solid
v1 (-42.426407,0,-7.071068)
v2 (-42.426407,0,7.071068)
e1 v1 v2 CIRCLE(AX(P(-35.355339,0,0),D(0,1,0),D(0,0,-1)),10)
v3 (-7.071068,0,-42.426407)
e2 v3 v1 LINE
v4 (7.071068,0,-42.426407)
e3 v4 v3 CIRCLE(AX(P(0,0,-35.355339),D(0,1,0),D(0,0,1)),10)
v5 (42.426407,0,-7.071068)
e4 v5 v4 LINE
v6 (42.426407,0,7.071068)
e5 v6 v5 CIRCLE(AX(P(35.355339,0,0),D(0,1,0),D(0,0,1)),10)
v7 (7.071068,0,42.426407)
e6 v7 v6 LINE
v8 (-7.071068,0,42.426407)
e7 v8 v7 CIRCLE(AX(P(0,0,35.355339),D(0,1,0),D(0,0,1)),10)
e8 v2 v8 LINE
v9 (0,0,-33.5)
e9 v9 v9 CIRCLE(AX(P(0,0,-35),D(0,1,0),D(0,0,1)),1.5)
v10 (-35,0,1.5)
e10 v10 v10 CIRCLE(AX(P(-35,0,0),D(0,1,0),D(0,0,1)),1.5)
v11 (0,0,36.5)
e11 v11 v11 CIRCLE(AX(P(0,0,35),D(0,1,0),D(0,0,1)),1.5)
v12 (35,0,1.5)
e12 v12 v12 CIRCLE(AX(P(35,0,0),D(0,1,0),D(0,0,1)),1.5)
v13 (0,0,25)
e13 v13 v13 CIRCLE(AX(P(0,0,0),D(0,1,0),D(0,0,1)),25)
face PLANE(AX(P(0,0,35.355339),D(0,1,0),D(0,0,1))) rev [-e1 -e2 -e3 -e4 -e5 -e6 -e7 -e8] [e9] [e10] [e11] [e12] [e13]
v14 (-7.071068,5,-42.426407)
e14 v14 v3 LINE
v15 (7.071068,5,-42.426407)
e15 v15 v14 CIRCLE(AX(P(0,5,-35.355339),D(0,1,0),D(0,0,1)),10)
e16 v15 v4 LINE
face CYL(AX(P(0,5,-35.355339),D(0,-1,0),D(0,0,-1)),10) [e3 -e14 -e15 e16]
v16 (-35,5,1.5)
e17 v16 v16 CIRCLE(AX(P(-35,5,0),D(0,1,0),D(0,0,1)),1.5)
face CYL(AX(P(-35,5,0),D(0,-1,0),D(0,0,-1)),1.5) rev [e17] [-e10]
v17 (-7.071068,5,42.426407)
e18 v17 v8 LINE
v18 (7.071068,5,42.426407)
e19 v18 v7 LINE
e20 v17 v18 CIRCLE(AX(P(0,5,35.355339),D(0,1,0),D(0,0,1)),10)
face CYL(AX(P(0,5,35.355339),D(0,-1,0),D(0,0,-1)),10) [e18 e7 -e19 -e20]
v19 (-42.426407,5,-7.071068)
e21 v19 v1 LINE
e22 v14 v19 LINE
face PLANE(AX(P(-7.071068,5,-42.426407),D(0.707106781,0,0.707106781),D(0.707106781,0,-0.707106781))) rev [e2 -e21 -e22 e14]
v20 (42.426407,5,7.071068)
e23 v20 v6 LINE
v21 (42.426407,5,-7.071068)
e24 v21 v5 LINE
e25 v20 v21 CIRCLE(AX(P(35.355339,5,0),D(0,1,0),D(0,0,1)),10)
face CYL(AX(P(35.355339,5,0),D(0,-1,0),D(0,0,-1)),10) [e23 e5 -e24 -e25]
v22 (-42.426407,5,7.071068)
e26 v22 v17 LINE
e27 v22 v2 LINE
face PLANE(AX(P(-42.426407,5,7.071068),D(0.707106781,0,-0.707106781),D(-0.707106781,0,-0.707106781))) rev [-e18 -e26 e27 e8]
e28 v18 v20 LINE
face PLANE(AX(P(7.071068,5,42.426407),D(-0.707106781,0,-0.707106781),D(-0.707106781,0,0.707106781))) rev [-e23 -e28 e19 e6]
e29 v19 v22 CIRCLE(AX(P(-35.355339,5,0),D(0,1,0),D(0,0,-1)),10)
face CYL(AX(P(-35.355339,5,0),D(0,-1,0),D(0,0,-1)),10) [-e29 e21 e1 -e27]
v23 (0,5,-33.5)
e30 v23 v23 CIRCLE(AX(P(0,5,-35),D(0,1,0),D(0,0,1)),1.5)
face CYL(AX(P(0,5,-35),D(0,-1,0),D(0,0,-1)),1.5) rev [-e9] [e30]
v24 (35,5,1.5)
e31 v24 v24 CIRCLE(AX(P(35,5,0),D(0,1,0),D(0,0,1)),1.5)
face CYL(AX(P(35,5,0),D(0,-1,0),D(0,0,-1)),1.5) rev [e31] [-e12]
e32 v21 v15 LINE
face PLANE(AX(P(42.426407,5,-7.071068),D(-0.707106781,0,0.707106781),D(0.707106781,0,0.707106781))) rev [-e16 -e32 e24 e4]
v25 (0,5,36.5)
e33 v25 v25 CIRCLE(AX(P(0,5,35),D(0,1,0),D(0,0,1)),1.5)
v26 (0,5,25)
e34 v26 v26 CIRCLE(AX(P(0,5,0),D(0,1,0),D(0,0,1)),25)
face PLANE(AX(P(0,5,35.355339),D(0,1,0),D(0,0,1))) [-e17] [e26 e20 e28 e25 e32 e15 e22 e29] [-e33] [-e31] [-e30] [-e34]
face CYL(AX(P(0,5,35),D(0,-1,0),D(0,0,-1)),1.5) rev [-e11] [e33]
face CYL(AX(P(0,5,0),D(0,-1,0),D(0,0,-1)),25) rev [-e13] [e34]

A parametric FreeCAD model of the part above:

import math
import FreeCAD as App
import Part
import Sketcher

V = App.Vector
Q = App.Units.Quantity

doc = App.newDocument("Part")
body = doc.addObject("PartDesign::Body", "Body")

# Sketch on XZ plane
sketch1 = body.newObject("Sketcher::SketchObject", "Sketch")
sketch1.AttachmentSupport = (doc.getObject("XZ_Plane"), [""])
sketch1.MapMode = "FlatFace"
sketch1.addGeometry([
    Part.LineSegment(V(-42.4, 7.1, 0), V(-7.1, 42.4, 0)),  # 0
    Part.ArcOfCircle(Part.Circle(V(0, 35.4, 0), V(0, 0, 1), 10), math.radians(45), math.radians(135)),  # 1
    Part.LineSegment(V(7.1, 42.4, 0), V(42.4, 7.1, 0)),  # 2
    Part.ArcOfCircle(Part.Circle(V(35.4, 0, 0), V(0, 0, 1), 10), math.radians(-45), math.radians(45)),  # 3
    Part.LineSegment(V(42.4, -7.1, 0), V(7.1, -42.4, 0)),  # 4
    Part.ArcOfCircle(Part.Circle(V(0, -35.4, 0), V(0, 0, 1), 10), math.radians(-135), math.radians(-45)),  # 5
    Part.LineSegment(V(-7.1, -42.4, 0), V(-42.4, -7.1, 0)),  # 6
    Part.ArcOfCircle(Part.Circle(V(-35.4, 0, 0), V(0, 0, 1), 10), math.radians(135), math.radians(225)),  # 7
    Part.Circle(V(0, 35, 0), V(0, 0, 1), 1.5),  # 8
    Part.Circle(V(-35, 0, 0), V(0, 0, 1), 1.5),  # 9
    Part.Circle(V(0, 0, 0), V(0, 0, 1), 25),  # 10
    Part.Circle(V(35, 0, 0), V(0, 0, 1), 1.5),  # 11
    Part.Circle(V(0, -35, 0), V(0, 0, 1), 1.5),  # 12
], False)
sketch1.addConstraint([
    Sketcher.Constraint("Tangent", 0, 2, 1, 2),
    Sketcher.Constraint("Tangent", 1, 1, 2, 1),
    Sketcher.Constraint("Tangent", 2, 2, 3, 2),
    Sketcher.Constraint("Tangent", 3, 1, 4, 1),
    Sketcher.Constraint("Tangent", 4, 2, 5, 2),
    Sketcher.Constraint("Tangent", 5, 1, 6, 1),
    Sketcher.Constraint("Tangent", 6, 2, 7, 2),
    Sketcher.Constraint("Tangent", 7, 1, 0, 1),
    Sketcher.Constraint("Coincident", 10, 3, -1, 1),
    Sketcher.Constraint("Equal", 1, 3),
    Sketcher.Constraint("Equal", 3, 5),
    Sketcher.Constraint("Equal", 5, 7),
    Sketcher.Constraint("Equal", 8, 9),
    Sketcher.Constraint("Equal", 9, 11),
    Sketcher.Constraint("Equal", 11, 12),
    Sketcher.Constraint("Symmetric", 1, 3, 5, 3, -1, 1),
    Sketcher.Constraint("Symmetric", 3, 3, 7, 3, -1, 1),
    Sketcher.Constraint("Symmetric", 9, 3, 11, 3, -1, 1),
    Sketcher.Constraint("Symmetric", 8, 3, 12, 3, -1, 1),
    Sketcher.Constraint("Symmetric", 0, 2, 1, 1, -2),
    Sketcher.Constraint("PointOnObject", 8, 3, -2),
    Sketcher.Constraint("PointOnObject", 9, 3, -1),
    Sketcher.Constraint("Perpendicular", 0, 2),
    Sketcher.Constraint("Diameter", 8, Q("3 mm")),
    Sketcher.Constraint("Diameter", 10, Q("50 mm")),
    Sketcher.Constraint("Radius", 1, Q("10 mm")),
    Sketcher.Constraint("Distance", 0, Q("50 mm")),
    Sketcher.Constraint("DistanceY", -1, 1, 8, 3, Q("35 mm")),
    Sketcher.Constraint("DistanceX", 9, 3, -1, 1, Q("35 mm")),
])
pad1 = body.newObject("PartDesign::Pad", "Pad")
pad1.Profile = sketch1
pad1.Length = 5
pad1.Reversed = True

doc.recompute()
